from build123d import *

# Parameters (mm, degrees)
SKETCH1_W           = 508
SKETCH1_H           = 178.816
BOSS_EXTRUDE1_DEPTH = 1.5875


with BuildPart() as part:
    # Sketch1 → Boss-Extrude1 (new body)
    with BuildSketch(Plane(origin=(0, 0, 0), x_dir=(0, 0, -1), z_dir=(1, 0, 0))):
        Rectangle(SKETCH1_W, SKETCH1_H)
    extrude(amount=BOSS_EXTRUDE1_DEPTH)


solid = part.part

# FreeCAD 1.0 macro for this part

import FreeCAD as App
import Part
import Sketcher

V = App.Vector
Q = App.Units.Quantity

doc = App.newDocument("Part")
body = doc.addObject("PartDesign::Body", "Body")

sketch1 = body.newObject("Sketcher::SketchObject", "Sketch")
sketch1.AttachmentSupport = (doc.getObject("YZ_Plane"), [""])
sketch1.MapMode = "FlatFace"
sketch1.addGeometry([
    Part.LineSegment(V(89.408, 254, 0), V(-89.408, 254, 0)),
    Part.LineSegment(V(-89.408, 254, 0), V(-89.408, -254, 0)),
    Part.LineSegment(V(-89.408, -254, 0), V(89.408, -254, 0)),
    Part.LineSegment(V(89.408, -254, 0), V(89.408, 254, 0)),
], False)
sketch1.addConstraint([
    Sketcher.Constraint("Coincident", 0, 2, 1, 1),
    Sketcher.Constraint("Coincident", 1, 2, 2, 1),
    Sketcher.Constraint("Coincident", 2, 2, 3, 1),
    Sketcher.Constraint("Coincident", 3, 2, 0, 1),
    Sketcher.Constraint("Horizontal", 0),
    Sketcher.Constraint("Vertical", 1),
    Sketcher.Constraint("Horizontal", 2),
    Sketcher.Constraint("Vertical", 3),
    Sketcher.Constraint("Symmetric", 0, 2, 2, 2, -1, 1),
    Sketcher.Constraint("DistanceY", 1, 2, 1, 1, Q("20 in")),
    Sketcher.Constraint("DistanceX", 0, 2, 0, 1, Q("7.04 in")),
])
pad1 = body.newObject("PartDesign::Pad", "Pad")
pad1.Profile = sketch1
pad1.Length = Q("0.0625 in")

doc.recompute()
